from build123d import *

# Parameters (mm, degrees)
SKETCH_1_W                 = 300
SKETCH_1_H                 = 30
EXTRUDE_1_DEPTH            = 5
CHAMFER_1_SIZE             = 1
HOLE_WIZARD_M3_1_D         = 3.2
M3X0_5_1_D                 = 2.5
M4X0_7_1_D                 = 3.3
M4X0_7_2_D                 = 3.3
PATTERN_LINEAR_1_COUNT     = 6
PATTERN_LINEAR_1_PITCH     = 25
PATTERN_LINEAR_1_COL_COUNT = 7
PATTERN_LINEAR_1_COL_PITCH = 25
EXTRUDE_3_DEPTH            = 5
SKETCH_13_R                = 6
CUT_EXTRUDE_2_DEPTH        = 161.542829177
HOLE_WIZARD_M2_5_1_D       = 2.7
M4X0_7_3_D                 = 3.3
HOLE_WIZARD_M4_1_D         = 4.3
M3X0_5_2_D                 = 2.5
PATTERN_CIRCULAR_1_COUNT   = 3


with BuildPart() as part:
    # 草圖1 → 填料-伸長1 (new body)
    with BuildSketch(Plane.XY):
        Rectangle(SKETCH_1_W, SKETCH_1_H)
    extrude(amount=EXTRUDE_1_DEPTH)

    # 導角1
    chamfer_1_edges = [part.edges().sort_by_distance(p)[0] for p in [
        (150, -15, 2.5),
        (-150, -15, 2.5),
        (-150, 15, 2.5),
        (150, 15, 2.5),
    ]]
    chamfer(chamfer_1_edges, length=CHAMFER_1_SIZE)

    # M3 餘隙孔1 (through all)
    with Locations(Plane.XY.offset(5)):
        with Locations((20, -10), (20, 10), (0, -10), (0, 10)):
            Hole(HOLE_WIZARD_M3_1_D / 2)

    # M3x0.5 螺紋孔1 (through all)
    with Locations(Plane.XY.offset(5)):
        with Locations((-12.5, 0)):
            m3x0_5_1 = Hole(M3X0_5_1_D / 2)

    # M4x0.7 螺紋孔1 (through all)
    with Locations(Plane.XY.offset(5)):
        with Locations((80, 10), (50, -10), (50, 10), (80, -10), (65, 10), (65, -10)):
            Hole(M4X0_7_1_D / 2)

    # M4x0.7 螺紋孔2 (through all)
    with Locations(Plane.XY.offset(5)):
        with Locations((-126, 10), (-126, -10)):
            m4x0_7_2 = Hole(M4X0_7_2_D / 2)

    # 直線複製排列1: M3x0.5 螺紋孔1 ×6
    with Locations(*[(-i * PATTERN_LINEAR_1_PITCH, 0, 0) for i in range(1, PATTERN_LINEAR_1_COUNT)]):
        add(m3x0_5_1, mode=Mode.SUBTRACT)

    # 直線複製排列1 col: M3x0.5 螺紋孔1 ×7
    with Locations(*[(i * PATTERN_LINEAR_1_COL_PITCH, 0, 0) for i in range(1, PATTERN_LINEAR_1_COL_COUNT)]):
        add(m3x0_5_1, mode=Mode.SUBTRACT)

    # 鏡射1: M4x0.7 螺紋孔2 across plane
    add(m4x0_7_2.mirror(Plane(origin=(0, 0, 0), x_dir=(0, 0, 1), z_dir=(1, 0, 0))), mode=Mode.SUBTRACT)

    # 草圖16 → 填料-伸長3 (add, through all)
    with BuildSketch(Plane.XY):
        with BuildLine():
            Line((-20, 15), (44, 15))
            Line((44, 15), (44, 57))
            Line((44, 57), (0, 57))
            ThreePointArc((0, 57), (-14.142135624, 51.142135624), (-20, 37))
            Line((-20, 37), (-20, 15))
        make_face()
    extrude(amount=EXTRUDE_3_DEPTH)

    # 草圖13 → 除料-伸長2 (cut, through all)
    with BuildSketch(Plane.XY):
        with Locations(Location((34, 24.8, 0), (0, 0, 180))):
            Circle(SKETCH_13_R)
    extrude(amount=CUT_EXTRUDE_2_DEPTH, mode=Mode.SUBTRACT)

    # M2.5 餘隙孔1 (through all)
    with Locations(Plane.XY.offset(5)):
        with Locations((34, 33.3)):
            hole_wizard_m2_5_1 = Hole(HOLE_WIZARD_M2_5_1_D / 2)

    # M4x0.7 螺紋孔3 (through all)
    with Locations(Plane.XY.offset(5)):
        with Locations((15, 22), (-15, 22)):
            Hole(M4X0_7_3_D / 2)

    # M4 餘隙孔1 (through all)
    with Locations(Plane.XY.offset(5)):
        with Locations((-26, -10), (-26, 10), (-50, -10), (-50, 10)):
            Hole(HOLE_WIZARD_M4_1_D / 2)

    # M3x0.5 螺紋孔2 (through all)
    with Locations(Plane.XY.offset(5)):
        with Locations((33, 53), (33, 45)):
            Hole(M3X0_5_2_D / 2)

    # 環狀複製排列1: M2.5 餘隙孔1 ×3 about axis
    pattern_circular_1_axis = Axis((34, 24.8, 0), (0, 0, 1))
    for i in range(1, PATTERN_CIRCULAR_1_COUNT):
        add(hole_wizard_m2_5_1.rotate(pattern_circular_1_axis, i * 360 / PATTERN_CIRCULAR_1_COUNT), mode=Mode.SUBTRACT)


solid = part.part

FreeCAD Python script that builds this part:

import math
import FreeCAD as App
import Part
import Sketcher


def edges_at(feature, points):
    """Names of the edges that pass closest to the given points."""
    edges = feature.Shape.Edges
    near = lambda p: min(range(len(edges)), key=lambda i: edges[i].distToShape(Part.Vertex(*p))[0])
    return sorted({f"Edge{near(p) + 1}" for p in points})


def add_polygon(sketch, points):
    """Adds a closed chain of lines whose ends are joined by coincident constraints."""
    first, n = sketch.GeometryCount, len(points)
    for a, b in zip(points, points[1:] + points[:1]):
        sketch.addGeometry(Part.LineSegment(App.Vector(*a, 0), App.Vector(*b, 0)), False)
    for i in range(n):
        sketch.addConstraint(Sketcher.Constraint("Coincident", first + i, 2, first + (i + 1) % n, 1))

doc = App.newDocument("Part")
body = doc.addObject("PartDesign::Body", "Body")

# Sketch on XY plane
sketch1 = body.newObject("Sketcher::SketchObject", "Sketch")
sketch1.AttachmentSupport = (doc.getObject("XY_Plane"), [""])
sketch1.MapMode = "FlatFace"
add_polygon(sketch1, [(-150, 15), (-150, -15), (150, -15), (150, 15)])  # lines 0-3
sketch1.addConstraint([
    Sketcher.Constraint("Vertical", 0),
    Sketcher.Constraint("Horizontal", 1),
    Sketcher.Constraint("Vertical", 2),
    Sketcher.Constraint("Horizontal", 3),
    Sketcher.Constraint("Symmetric", 0, 2, 2, 2, -1, 1),
    Sketcher.Constraint("DistanceX", 1, 1, 1, 2, 300.0),
    Sketcher.Constraint("DistanceY", 0, 2, 0, 1, 30.0),
])
pad1 = body.newObject("PartDesign::Pad", "Pad")
pad1.Profile = sketch1
pad1.Length = 5
doc.recompute()

chamfer = body.newObject("PartDesign::Chamfer", "Chamfer")
chamfer.Base = (pad1, edges_at(pad1, [
    (150, -15, 2.5),
    (-150, -15, 2.5),
    (-150, 15, 2.5),
    (150, 15, 2.5),
]))
chamfer.Size = 1

# Sketch on XY plane
sketch2 = body.newObject("Sketcher::SketchObject", "Sketch001")
sketch2.AttachmentSupport = (doc.getObject("XY_Plane"), [""])
sketch2.MapMode = "FlatFace"
sketch2.AttachmentOffset = App.Placement(App.Vector(0, 0, 5), App.Rotation())
sketch2.addGeometry([
    Part.Circle(App.Vector(20, -10, 0), App.Vector(0, 0, 1), 1.6),
    Part.Circle(App.Vector(20, 10, 0), App.Vector(0, 0, 1), 1.6),
    Part.Circle(App.Vector(0, -10, 0), App.Vector(0, 0, 1), 1.6),
    Part.Circle(App.Vector(0, 10, 0), App.Vector(0, 0, 1), 1.6),
], False)
sketch2.addConstraint([
    Sketcher.Constraint("Equal", 0, 1),
    Sketcher.Constraint("Equal", 1, 2),
    Sketcher.Constraint("Equal", 2, 3),
    Sketcher.Constraint("Symmetric", 2, 3, 3, 3, -1, 1),
    Sketcher.Constraint("Symmetric", 0, 3, 1, 3, -1),
    Sketcher.Constraint("PointOnObject", 2, 3, -2),
    Sketcher.Constraint("Horizontal", 0, 3, 2, 3),
    Sketcher.Constraint("Diameter", 0, 3.2),
    Sketcher.Constraint("DistanceX", -1, 1, 0, 3, 20.0),
    Sketcher.Constraint("DistanceY", 0, 3, -1, 1, 10.0),
])
doc.recompute()
hole = body.newObject("PartDesign::Hole", "Hole")
hole.Profile = sketch2
hole.ThreadType = "None"
hole.Diameter = 3.2
hole.DepthType = "ThroughAll"

# Sketch on XY plane
sketch3 = body.newObject("Sketcher::SketchObject", "Sketch002")
sketch3.AttachmentSupport = (doc.getObject("XY_Plane"), [""])
sketch3.MapMode = "FlatFace"
sketch3.AttachmentOffset = App.Placement(App.Vector(0, 0, 5), App.Rotation())
sketch3.addGeometry(Part.Circle(App.Vector(-12.5, 0, 0), App.Vector(0, 0, 1), 1.2), False)
sketch3.addConstraint([
    Sketcher.Constraint("PointOnObject", 0, 3, -1),
    Sketcher.Constraint("Diameter", 0, 2.5),
    Sketcher.Constraint("DistanceX", 0, 3, -1, 1, 12.5),
])
doc.recompute()
hole2 = body.newObject("PartDesign::Hole", "Hole001")
hole2.Profile = sketch3
hole2.ThreadType = "None"
hole2.Diameter = 2.5
hole2.DepthType = "ThroughAll"

# Sketch on XY plane
sketch4 = body.newObject("Sketcher::SketchObject", "Sketch003")
sketch4.AttachmentSupport = (doc.getObject("XY_Plane"), [""])
sketch4.MapMode = "FlatFace"
sketch4.AttachmentOffset = App.Placement(App.Vector(0, 0, 5), App.Rotation())
sketch4.addGeometry([
    Part.Circle(App.Vector(80, 10, 0), App.Vector(0, 0, 1), 1.6),  # 0
    Part.Circle(App.Vector(50, -10, 0), App.Vector(0, 0, 1), 1.6),  # 1
    Part.Circle(App.Vector(50, 10, 0), App.Vector(0, 0, 1), 1.6),  # 2
    Part.Circle(App.Vector(80, -10, 0), App.Vector(0, 0, 1), 1.6),  # 3
    Part.Circle(App.Vector(65, 10, 0), App.Vector(0, 0, 1), 1.6),  # 4
    Part.Circle(App.Vector(65, -10, 0), App.Vector(0, 0, 1), 1.6),  # 5
], False)
sketch4.addConstraint([
    Sketcher.Constraint("Equal", 0, 1),
    Sketcher.Constraint("Equal", 1, 2),
    Sketcher.Constraint("Equal", 2, 3),
    Sketcher.Constraint("Equal", 3, 4),
    Sketcher.Constraint("Equal", 4, 5),
    Sketcher.Constraint("Symmetric", 1, 3, 2, 3, -1),
    Sketcher.Constraint("Symmetric", 0, 3, 3, 3, -1),
    Sketcher.Constraint("Symmetric", 4, 3, 5, 3, -1),
    Sketcher.Constraint("Horizontal", 0, 3, 2, 3),
    Sketcher.Constraint("Horizontal", 2, 3, 4, 3),
    Sketcher.Constraint("Diameter", 0, 3.3),
    Sketcher.Constraint("DistanceX", -1, 1, 0, 3, 80.0),
    Sketcher.Constraint("DistanceY", -1, 1, 0, 3, 10.0),
    Sketcher.Constraint("DistanceX", -1, 1, 1, 3, 50.0),
    Sketcher.Constraint("DistanceX", -1, 1, 4, 3, 65.0),
])
doc.recompute()
hole3 = body.newObject("PartDesign::Hole", "Hole002")
hole3.Profile = sketch4
hole3.ThreadType = "None"
hole3.Diameter = 3.3
hole3.DepthType = "ThroughAll"

# Sketch on XY plane
sketch5 = body.newObject("Sketcher::SketchObject", "Sketch004")
sketch5.AttachmentSupport = (doc.getObject("XY_Plane"), [""])
sketch5.MapMode = "FlatFace"
sketch5.AttachmentOffset = App.Placement(App.Vector(0, 0, 5), App.Rotation())
sketch5.addGeometry([
    Part.Circle(App.Vector(-126, 10, 0), App.Vector(0, 0, 1), 1.6),
    Part.Circle(App.Vector(-126, -10, 0), App.Vector(0, 0, 1), 1.6),
], False)
sketch5.addConstraint([
    Sketcher.Constraint("Equal", 0, 1),
    Sketcher.Constraint("Symmetric", 0, 3, 1, 3, -1),
    Sketcher.Constraint("Diameter", 0, 3.3),
    Sketcher.Constraint("DistanceX", 0, 3, -1, 1, 126.0),
    Sketcher.Constraint("DistanceY", -1, 1, 0, 3, 10.0),
])
doc.recompute()
hole4 = body.newObject("PartDesign::Hole", "Hole003")
hole4.Profile = sketch5
hole4.ThreadType = "None"
hole4.Diameter = 3.3
hole4.DepthType = "ThroughAll"
doc.recompute()

linearpattern = body.newObject("PartDesign::LinearPattern", "LinearPattern")
linearpattern.Originals = [hole2]
linearpattern.Direction = (doc.getObject("X_Axis"), [""])
linearpattern.Mode = "offset"
linearpattern.Offset = 25
linearpattern.Occurrences = 6
linearpattern.Reversed = True
body.Tip = linearpattern
doc.recompute()

linearpattern2 = body.newObject("PartDesign::LinearPattern", "LinearPattern001")
linearpattern2.Originals = [hole2]
linearpattern2.Direction = (doc.getObject("X_Axis"), [""])
linearpattern2.Mode = "offset"
linearpattern2.Offset = 25
linearpattern2.Occurrences = 7
body.Tip = linearpattern2
doc.recompute()

mirrored = body.newObject("PartDesign::Mirrored", "Mirrored")
mirrored.Originals = [hole4]
mirrored.MirrorPlane = (doc.getObject("YZ_Plane"), [""])
body.Tip = mirrored

# Sketch on XY plane
sketch6 = body.newObject("Sketcher::SketchObject", "Sketch005")
sketch6.AttachmentSupport = (doc.getObject("XY_Plane"), [""])
sketch6.MapMode = "FlatFace"
sketch6.addGeometry([
    Part.LineSegment(App.Vector(-20, 15, 0), App.Vector(44, 15, 0)),  # 0
    Part.LineSegment(App.Vector(44, 15, 0), App.Vector(44, 57, 0)),  # 1
    Part.LineSegment(App.Vector(44, 57, 0), App.Vector(0, 57, 0)),  # 2
    Part.ArcOfCircle(Part.Circle(App.Vector(0, 37, 0), App.Vector(0, 0, 1), 20), math.radians(90), math.radians(180)),  # 3
    Part.LineSegment(App.Vector(-20, 37, 0), App.Vector(-20, 15, 0)),  # 4
], False)
sketch6.addConstraint([
    Sketcher.Constraint("Coincident", 0, 2, 1, 1),
    Sketcher.Constraint("Coincident", 1, 2, 2, 1),
    Sketcher.Constraint("Tangent", 2, 2, 3, 1),
    Sketcher.Constraint("Tangent", 3, 2, 4, 1),
    Sketcher.Constraint("Coincident", 4, 2, 0, 1),
    Sketcher.Constraint("Horizontal", 0),
    Sketcher.Constraint("Vertical", 1),
    Sketcher.Constraint("Horizontal", 2),
    Sketcher.Constraint("Vertical", 4),
    Sketcher.Constraint("PointOnObject", 3, 3, -2),
    Sketcher.Constraint("Radius", 3, 20.0),
    Sketcher.Constraint("DistanceX", 0, 1, 0, 2, 64.0),
    Sketcher.Constraint("DistanceY", 1, 1, 1, 2, 42.0),
    Sketcher.Constraint("DistanceY", -1, 1, 3, 3, 37.0),
])
pad2 = body.newObject("PartDesign::Pad", "Pad001")
pad2.Profile = sketch6
pad2.Length = 5

# Sketch on XY plane
sketch7 = body.newObject("Sketcher::SketchObject", "Sketch006")
sketch7.AttachmentSupport = (doc.getObject("XY_Plane"), [""])
sketch7.MapMode = "FlatFace"
sketch7.addGeometry(Part.Circle(App.Vector(34, 25, 0), App.Vector(0, 0, 1), 6), False)
sketch7.addConstraint([
    Sketcher.Constraint("Diameter", 0, 12.0),
    Sketcher.Constraint("DistanceX", -1, 1, 0, 3, 34.0),
    Sketcher.Constraint("DistanceY", -1, 1, 0, 3, 24.8),
])
pocket1 = body.newObject("PartDesign::Pocket", "Pocket")
pocket1.Profile = sketch7
pocket1.Type = "ThroughAll"
pocket1.Reversed = True

# Sketch on XY plane
sketch8 = body.newObject("Sketcher::SketchObject", "Sketch007")
sketch8.AttachmentSupport = (doc.getObject("XY_Plane"), [""])
sketch8.MapMode = "FlatFace"
sketch8.AttachmentOffset = App.Placement(App.Vector(0, 0, 5), App.Rotation())
sketch8.addGeometry(Part.Circle(App.Vector(34, 33.3, 0), App.Vector(0, 0, 1), 1.4), False)
sketch8.addConstraint([
    Sketcher.Constraint("Diameter", 0, 2.7),
    Sketcher.Constraint("DistanceX", -1, 1, 0, 3, 34.0),
    Sketcher.Constraint("DistanceY", -1, 1, 0, 3, 33.3),
])
doc.recompute()
hole5 = body.newObject("PartDesign::Hole", "Hole004")
hole5.Profile = sketch8
hole5.ThreadType = "None"
hole5.Diameter = 2.7
hole5.DepthType = "ThroughAll"

# Sketch on XY plane
sketch9 = body.newObject("Sketcher::SketchObject", "Sketch008")
sketch9.AttachmentSupport = (doc.getObject("XY_Plane"), [""])
sketch9.MapMode = "FlatFace"
sketch9.AttachmentOffset = App.Placement(App.Vector(0, 0, 5), App.Rotation())
sketch9.addGeometry([
    Part.Circle(App.Vector(15, 22, 0), App.Vector(0, 0, 1), 1.6),
    Part.Circle(App.Vector(-15, 22, 0), App.Vector(0, 0, 1), 1.6),
], False)
sketch9.addConstraint([
    Sketcher.Constraint("Equal", 0, 1),
    Sketcher.Constraint("Symmetric", 0, 3, 1, 3, -2),
    Sketcher.Constraint("Diameter", 0, 3.3),
    Sketcher.Constraint("DistanceX", -1, 1, 0, 3, 15.0),
    Sketcher.Constraint("DistanceY", -1, 1, 0, 3, 22.0),
])
doc.recompute()
hole6 = body.newObject("PartDesign::Hole", "Hole005")
hole6.Profile = sketch9
hole6.ThreadType = "None"
hole6.Diameter = 3.3
hole6.DepthType = "ThroughAll"

# Sketch on XY plane
sketch10 = body.newObject("Sketcher::SketchObject", "Sketch009")
sketch10.AttachmentSupport = (doc.getObject("XY_Plane"), [""])
sketch10.MapMode = "FlatFace"
sketch10.AttachmentOffset = App.Placement(App.Vector(0, 0, 5), App.Rotation())
sketch10.addGeometry([
    Part.Circle(App.Vector(-26, -10, 0), App.Vector(0, 0, 1), 2.1),
    Part.Circle(App.Vector(-26, 10, 0), App.Vector(0, 0, 1), 2.1),
    Part.Circle(App.Vector(-50, -10, 0), App.Vector(0, 0, 1), 2.1),
    Part.Circle(App.Vector(-50, 10, 0), App.Vector(0, 0, 1), 2.1),
], False)
sketch10.addConstraint([
    Sketcher.Constraint("Equal", 0, 1),
    Sketcher.Constraint("Equal", 1, 2),
    Sketcher.Constraint("Equal", 2, 3),
    Sketcher.Constraint("Symmetric", 0, 3, 1, 3, -1),
    Sketcher.Constraint("Symmetric", 2, 3, 3, 3, -1),
    Sketcher.Constraint("Horizontal", 0, 3, 2, 3),
    Sketcher.Constraint("Diameter", 0, 4.3),
    Sketcher.Constraint("DistanceX", 0, 3, -1, 1, 26.0),
    Sketcher.Constraint("DistanceY", 0, 3, -1, 1, 10.0),
    Sketcher.Constraint("DistanceX", 2, 3, -1, 1, 50.0),
])
doc.recompute()
hole7 = body.newObject("PartDesign::Hole", "Hole006")
hole7.Profile = sketch10
hole7.ThreadType = "None"
hole7.Diameter = 4.3
hole7.DepthType = "ThroughAll"

# Sketch on XY plane
sketch11 = body.newObject("Sketcher::SketchObject", "Sketch010")
sketch11.AttachmentSupport = (doc.getObject("XY_Plane"), [""])
sketch11.MapMode = "FlatFace"
sketch11.AttachmentOffset = App.Placement(App.Vector(0, 0, 5), App.Rotation())
sketch11.addGeometry([
    Part.Circle(App.Vector(33, 53, 0), App.Vector(0, 0, 1), 1.2),
    Part.Circle(App.Vector(33, 45, 0), App.Vector(0, 0, 1), 1.2),
], False)
sketch11.addConstraint([
    Sketcher.Constraint("Equal", 0, 1),
    Sketcher.Constraint("Vertical", 0, 3, 1, 3),
    Sketcher.Constraint("Diameter", 0, 2.5),
    Sketcher.Constraint("DistanceX", -1, 1, 0, 3, 33.0),
    Sketcher.Constraint("DistanceY", -1, 1, 0, 3, 53.0),
    Sketcher.Constraint("DistanceY", -1, 1, 1, 3, 45.0),
])
doc.recompute()
hole8 = body.newObject("PartDesign::Hole", "Hole007")
hole8.Profile = sketch11
hole8.ThreadType = "None"
hole8.Diameter = 2.5
hole8.DepthType = "ThroughAll"
doc.recompute()

datumline = body.newObject("PartDesign::Line", "DatumLine")
datumline.Placement = App.Placement(App.Vector(34, 24.8, 0), App.Rotation(App.Vector(0, 0, 1), App.Vector(0, 0, 1)))
polarpattern = body.newObject("PartDesign::PolarPattern", "PolarPattern")
polarpattern.Originals = [hole5]
polarpattern.Axis = (datumline, [""])
polarpattern.Angle = 360
polarpattern.Occurrences = 3
body.Tip = polarpattern

doc.recompute()
